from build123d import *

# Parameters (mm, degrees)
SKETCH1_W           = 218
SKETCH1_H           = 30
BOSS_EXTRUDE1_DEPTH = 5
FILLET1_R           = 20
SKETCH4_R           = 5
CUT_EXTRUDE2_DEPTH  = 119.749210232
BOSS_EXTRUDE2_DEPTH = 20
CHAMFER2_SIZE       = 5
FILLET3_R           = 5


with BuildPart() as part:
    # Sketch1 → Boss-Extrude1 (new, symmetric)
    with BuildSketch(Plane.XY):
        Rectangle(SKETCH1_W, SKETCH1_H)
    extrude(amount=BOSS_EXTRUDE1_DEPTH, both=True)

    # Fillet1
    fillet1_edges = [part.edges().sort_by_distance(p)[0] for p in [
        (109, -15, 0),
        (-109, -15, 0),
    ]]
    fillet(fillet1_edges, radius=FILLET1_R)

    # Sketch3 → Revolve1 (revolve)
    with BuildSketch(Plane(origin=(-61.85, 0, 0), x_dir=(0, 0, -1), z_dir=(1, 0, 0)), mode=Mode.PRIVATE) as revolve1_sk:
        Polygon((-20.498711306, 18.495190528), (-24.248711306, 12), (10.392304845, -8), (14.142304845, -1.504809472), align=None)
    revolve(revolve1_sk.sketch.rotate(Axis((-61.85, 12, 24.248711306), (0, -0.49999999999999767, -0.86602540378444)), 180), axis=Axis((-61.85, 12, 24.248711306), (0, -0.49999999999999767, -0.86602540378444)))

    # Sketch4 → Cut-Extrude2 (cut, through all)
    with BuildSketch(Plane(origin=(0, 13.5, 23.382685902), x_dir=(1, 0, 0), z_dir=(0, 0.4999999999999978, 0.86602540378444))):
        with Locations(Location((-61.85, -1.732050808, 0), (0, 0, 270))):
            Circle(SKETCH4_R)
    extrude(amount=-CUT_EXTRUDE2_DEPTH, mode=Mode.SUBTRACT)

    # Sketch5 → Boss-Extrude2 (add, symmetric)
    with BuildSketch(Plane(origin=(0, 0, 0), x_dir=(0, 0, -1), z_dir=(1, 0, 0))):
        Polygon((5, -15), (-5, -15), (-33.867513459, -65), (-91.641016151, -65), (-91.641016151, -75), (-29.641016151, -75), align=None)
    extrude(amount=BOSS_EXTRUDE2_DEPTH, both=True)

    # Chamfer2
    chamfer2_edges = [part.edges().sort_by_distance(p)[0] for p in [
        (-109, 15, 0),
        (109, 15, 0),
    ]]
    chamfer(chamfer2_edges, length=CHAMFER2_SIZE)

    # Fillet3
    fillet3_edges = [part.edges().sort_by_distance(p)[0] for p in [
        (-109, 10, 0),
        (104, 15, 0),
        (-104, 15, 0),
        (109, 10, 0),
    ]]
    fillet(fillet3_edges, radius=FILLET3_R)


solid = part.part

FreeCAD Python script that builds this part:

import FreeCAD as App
import Part
import Sketcher
Q = App.Units.Quantity


def edges_at(feature, points):
    """Names of the edges that pass closest to the given points."""
    edges = feature.Shape.Edges
    near = lambda p: min(range(len(edges)), key=lambda i: edges[i].distToShape(Part.Vertex(*p))[0])
    return sorted({f"Edge{near(p) + 1}" for p in points})

doc = App.newDocument("Part")
body = doc.addObject("PartDesign::Body", "Body")

sketch1 = body.newObject("Sketcher::SketchObject", "Sketch")
sketch1.AttachmentSupport = (doc.getObject("XY_Plane"), [""])
sketch1.MapMode = "FlatFace"
sketch1.addGeometry(Part.LineSegment(App.Vector(-109, 15, 0), App.Vector(-109, -15, 0)), False)
sketch1.addGeometry(Part.LineSegment(App.Vector(-109, -15, 0), App.Vector(109, -15, 0)), False)
sketch1.addGeometry(Part.LineSegment(App.Vector(109, -15, 0), App.Vector(109, 15, 0)), False)
sketch1.addGeometry(Part.LineSegment(App.Vector(109, 15, 0), App.Vector(-109, 15, 0)), False)
sketch1.addConstraint(Sketcher.Constraint("Coincident", 0, 2, 1, 1))
sketch1.addConstraint(Sketcher.Constraint("Coincident", 1, 2, 2, 1))
sketch1.addConstraint(Sketcher.Constraint("Coincident", 2, 2, 3, 1))
sketch1.addConstraint(Sketcher.Constraint("Coincident", 3, 2, 0, 1))
sketch1.addConstraint(Sketcher.Constraint("Vertical", 0))
sketch1.addConstraint(Sketcher.Constraint("Horizontal", 1))
sketch1.addConstraint(Sketcher.Constraint("Vertical", 2))
sketch1.addConstraint(Sketcher.Constraint("Horizontal", 3))
sketch1.addConstraint(Sketcher.Constraint("Symmetric", 0, 2, 2, 2, -1, 1))
sketch1.addConstraint(Sketcher.Constraint("DistanceX", 1, 1, 1, 2, Q("218 mm")))
sketch1.addConstraint(Sketcher.Constraint("DistanceY", 0, 2, 0, 1, Q("30 mm")))
pad1 = body.newObject("PartDesign::Pad", "Pad")
pad1.Profile = sketch1
pad1.Length = 10
pad1.Midplane = True
doc.recompute()

fillet = body.newObject("PartDesign::Fillet", "Fillet")
fillet.Base = (pad1, edges_at(pad1, [(109, -15, 0), (-109, -15, 0)]))
fillet.Radius = 20

sketch2 = body.newObject("Sketcher::SketchObject", "Sketch001")
sketch2.AttachmentSupport = (doc.getObject("YZ_Plane"), [""])
sketch2.MapMode = "FlatFace"
sketch2.AttachmentOffset = App.Placement(App.Vector(0, 0, -61.85), App.Rotation())
sketch2.addGeometry(Part.LineSegment(App.Vector(18, 20, 0), App.Vector(12, 24, 0)), False)
sketch2.addGeometry(Part.LineSegment(App.Vector(12, 24, 0), App.Vector(-8, -10, 0)), False)
sketch2.addGeometry(Part.LineSegment(App.Vector(-8, -10, 0), App.Vector(-2, -14, 0)), False)
sketch2.addGeometry(Part.LineSegment(App.Vector(-2, -14, 0), App.Vector(18, 20, 0)), False)
sketch2.addGeometry(Part.LineSegment(App.Vector(12, 24, 0), App.Vector(-8, -10, 0)), True)
sketch2.addConstraint(Sketcher.Constraint("Coincident", 0, 2, 1, 1))
sketch2.addConstraint(Sketcher.Constraint("Coincident", 1, 2, 2, 1))
sketch2.addConstraint(Sketcher.Constraint("Coincident", 2, 2, 3, 1))
sketch2.addConstraint(Sketcher.Constraint("Coincident", 3, 2, 0, 1))
sketch2.addConstraint(Sketcher.Constraint("Coincident", 4, 1, 0, 2))
sketch2.addConstraint(Sketcher.Constraint("Coincident", 4, 2, 1, 2))
sketch2.addConstraint(Sketcher.Constraint("Perpendicular", 0, 1))
sketch2.addConstraint(Sketcher.Constraint("Perpendicular", 1, 2))
sketch2.addConstraint(Sketcher.Constraint("Perpendicular", 2, 3))
sketch2.addConstraint(Sketcher.Constraint("Angle", 0, Q("150 deg")))
sketch2.addConstraint(Sketcher.Constraint("Distance", 1, Q("40 mm")))
sketch2.addConstraint(Sketcher.Constraint("DistanceX", -1, 1, 0, 2, Q("12 mm")))
sketch2.addConstraint(Sketcher.Constraint("Distance", 0, Q("7.5 mm")))
sketch2.addConstraint(Sketcher.Constraint("DistanceY", -1, 1, 0, 2, Q("24.248711 mm")))
revolution = body.newObject("PartDesign::Revolution", "Revolution")
revolution.Profile = sketch2
revolution.ReferenceAxis = (sketch2, ["Axis0"])
revolution.Angle = 360

sketch3 = body.newObject("Sketcher::SketchObject", "Sketch002")
sketch3.Placement = App.Placement(App.Vector(0, 13.5, 23.382686), App.Rotation(App.Vector(1, 0, 0), App.Vector(0, 0.866025404, -0.5), App.Vector(0, 0.5, 0.866025404), "ZXY"))
sketch3.addGeometry(Part.Circle(App.Vector(-62, -2, 0), App.Vector(0, 0, 1), 5), False)
sketch3.addConstraint(Sketcher.Constraint("Diameter", 0, Q("10 mm")))
sketch3.addConstraint(Sketcher.Constraint("DistanceX", 0, 3, -1, 1, Q("61.85 mm")))
sketch3.addConstraint(Sketcher.Constraint("DistanceY", 0, 3, -1, 1, Q("1.732051 mm")))
pocket1 = body.newObject("PartDesign::Pocket", "Pocket")
pocket1.Profile = sketch3
pocket1.Type = "ThroughAll"

sketch4 = body.newObject("Sketcher::SketchObject", "Sketch003")
sketch4.AttachmentSupport = (doc.getObject("YZ_Plane"), [""])
sketch4.MapMode = "FlatFace"
sketch4.addGeometry(Part.LineSegment(App.Vector(-15, -5, 0), App.Vector(-15, 5, 0)), False)
sketch4.addGeometry(Part.LineSegment(App.Vector(-15, 5, 0), App.Vector(-65, 34, 0)), False)
sketch4.addGeometry(Part.LineSegment(App.Vector(-65, 34, 0), App.Vector(-65, 92, 0)), False)
sketch4.addGeometry(Part.LineSegment(App.Vector(-65, 92, 0), App.Vector(-75, 92, 0)), False)
sketch4.addGeometry(Part.LineSegment(App.Vector(-75, 92, 0), App.Vector(-75, 30, 0)), False)
sketch4.addGeometry(Part.LineSegment(App.Vector(-75, 30, 0), App.Vector(-15, -5, 0)), False)
sketch4.addConstraint(Sketcher.Constraint("Coincident", 0, 2, 1, 1))
sketch4.addConstraint(Sketcher.Constraint("Coincident", 1, 2, 2, 1))
sketch4.addConstraint(Sketcher.Constraint("Coincident", 2, 2, 3, 1))
sketch4.addConstraint(Sketcher.Constraint("Coincident", 3, 2, 4, 1))
sketch4.addConstraint(Sketcher.Constraint("Coincident", 4, 2, 5, 1))
sketch4.addConstraint(Sketcher.Constraint("Coincident", 5, 2, 0, 1))
sketch4.addConstraint(Sketcher.Constraint("Vertical", 0))
sketch4.addConstraint(Sketcher.Constraint("Vertical", 2))
sketch4.addConstraint(Sketcher.Constraint("Horizontal", 3))
sketch4.addConstraint(Sketcher.Constraint("Vertical", 4))
sketch4.addConstraint(Sketcher.Constraint("Parallel", 1, 5))
sketch4.addConstraint(Sketcher.Constraint("Equal", 3, 0))
sketch4.addConstraint(Sketcher.Constraint("DistanceX", 3, 2, 3, 1, Q("10 mm")))
sketch4.addConstraint(Sketcher.Constraint("DistanceY", 4, 2, 4, 1, Q("62 mm")))
sketch4.addConstraint(Sketcher.Constraint("Angle", 1, Q("150 deg")))
sketch4.addConstraint(Sketcher.Constraint("DistanceX", 0, 2, -1, 1, Q("15 mm")))
sketch4.addConstraint(Sketcher.Constraint("DistanceY", -1, 1, 0, 2, Q("5 mm")))
sketch4.addConstraint(Sketcher.Constraint("DistanceX", 1, 2, -1, 1, Q("65 mm")))
pad2 = body.newObject("PartDesign::Pad", "Pad001")
pad2.Profile = sketch4
pad2.Length = 40
pad2.Midplane = True
doc.recompute()

chamfer = body.newObject("PartDesign::Chamfer", "Chamfer")
chamfer.Base = (pad2, edges_at(pad2, [(-109, 15, 0), (109, 15, 0)]))
chamfer.Size = 5
doc.recompute()

fillet2 = body.newObject("PartDesign::Fillet", "Fillet001")
fillet2.Base = (chamfer, edges_at(chamfer, [
    (-109, 10, 0),
    (104, 15, 0),
    (-104, 15, 0),
    (109, 10, 0),
]))
fillet2.Radius = 5

doc.recompute()
